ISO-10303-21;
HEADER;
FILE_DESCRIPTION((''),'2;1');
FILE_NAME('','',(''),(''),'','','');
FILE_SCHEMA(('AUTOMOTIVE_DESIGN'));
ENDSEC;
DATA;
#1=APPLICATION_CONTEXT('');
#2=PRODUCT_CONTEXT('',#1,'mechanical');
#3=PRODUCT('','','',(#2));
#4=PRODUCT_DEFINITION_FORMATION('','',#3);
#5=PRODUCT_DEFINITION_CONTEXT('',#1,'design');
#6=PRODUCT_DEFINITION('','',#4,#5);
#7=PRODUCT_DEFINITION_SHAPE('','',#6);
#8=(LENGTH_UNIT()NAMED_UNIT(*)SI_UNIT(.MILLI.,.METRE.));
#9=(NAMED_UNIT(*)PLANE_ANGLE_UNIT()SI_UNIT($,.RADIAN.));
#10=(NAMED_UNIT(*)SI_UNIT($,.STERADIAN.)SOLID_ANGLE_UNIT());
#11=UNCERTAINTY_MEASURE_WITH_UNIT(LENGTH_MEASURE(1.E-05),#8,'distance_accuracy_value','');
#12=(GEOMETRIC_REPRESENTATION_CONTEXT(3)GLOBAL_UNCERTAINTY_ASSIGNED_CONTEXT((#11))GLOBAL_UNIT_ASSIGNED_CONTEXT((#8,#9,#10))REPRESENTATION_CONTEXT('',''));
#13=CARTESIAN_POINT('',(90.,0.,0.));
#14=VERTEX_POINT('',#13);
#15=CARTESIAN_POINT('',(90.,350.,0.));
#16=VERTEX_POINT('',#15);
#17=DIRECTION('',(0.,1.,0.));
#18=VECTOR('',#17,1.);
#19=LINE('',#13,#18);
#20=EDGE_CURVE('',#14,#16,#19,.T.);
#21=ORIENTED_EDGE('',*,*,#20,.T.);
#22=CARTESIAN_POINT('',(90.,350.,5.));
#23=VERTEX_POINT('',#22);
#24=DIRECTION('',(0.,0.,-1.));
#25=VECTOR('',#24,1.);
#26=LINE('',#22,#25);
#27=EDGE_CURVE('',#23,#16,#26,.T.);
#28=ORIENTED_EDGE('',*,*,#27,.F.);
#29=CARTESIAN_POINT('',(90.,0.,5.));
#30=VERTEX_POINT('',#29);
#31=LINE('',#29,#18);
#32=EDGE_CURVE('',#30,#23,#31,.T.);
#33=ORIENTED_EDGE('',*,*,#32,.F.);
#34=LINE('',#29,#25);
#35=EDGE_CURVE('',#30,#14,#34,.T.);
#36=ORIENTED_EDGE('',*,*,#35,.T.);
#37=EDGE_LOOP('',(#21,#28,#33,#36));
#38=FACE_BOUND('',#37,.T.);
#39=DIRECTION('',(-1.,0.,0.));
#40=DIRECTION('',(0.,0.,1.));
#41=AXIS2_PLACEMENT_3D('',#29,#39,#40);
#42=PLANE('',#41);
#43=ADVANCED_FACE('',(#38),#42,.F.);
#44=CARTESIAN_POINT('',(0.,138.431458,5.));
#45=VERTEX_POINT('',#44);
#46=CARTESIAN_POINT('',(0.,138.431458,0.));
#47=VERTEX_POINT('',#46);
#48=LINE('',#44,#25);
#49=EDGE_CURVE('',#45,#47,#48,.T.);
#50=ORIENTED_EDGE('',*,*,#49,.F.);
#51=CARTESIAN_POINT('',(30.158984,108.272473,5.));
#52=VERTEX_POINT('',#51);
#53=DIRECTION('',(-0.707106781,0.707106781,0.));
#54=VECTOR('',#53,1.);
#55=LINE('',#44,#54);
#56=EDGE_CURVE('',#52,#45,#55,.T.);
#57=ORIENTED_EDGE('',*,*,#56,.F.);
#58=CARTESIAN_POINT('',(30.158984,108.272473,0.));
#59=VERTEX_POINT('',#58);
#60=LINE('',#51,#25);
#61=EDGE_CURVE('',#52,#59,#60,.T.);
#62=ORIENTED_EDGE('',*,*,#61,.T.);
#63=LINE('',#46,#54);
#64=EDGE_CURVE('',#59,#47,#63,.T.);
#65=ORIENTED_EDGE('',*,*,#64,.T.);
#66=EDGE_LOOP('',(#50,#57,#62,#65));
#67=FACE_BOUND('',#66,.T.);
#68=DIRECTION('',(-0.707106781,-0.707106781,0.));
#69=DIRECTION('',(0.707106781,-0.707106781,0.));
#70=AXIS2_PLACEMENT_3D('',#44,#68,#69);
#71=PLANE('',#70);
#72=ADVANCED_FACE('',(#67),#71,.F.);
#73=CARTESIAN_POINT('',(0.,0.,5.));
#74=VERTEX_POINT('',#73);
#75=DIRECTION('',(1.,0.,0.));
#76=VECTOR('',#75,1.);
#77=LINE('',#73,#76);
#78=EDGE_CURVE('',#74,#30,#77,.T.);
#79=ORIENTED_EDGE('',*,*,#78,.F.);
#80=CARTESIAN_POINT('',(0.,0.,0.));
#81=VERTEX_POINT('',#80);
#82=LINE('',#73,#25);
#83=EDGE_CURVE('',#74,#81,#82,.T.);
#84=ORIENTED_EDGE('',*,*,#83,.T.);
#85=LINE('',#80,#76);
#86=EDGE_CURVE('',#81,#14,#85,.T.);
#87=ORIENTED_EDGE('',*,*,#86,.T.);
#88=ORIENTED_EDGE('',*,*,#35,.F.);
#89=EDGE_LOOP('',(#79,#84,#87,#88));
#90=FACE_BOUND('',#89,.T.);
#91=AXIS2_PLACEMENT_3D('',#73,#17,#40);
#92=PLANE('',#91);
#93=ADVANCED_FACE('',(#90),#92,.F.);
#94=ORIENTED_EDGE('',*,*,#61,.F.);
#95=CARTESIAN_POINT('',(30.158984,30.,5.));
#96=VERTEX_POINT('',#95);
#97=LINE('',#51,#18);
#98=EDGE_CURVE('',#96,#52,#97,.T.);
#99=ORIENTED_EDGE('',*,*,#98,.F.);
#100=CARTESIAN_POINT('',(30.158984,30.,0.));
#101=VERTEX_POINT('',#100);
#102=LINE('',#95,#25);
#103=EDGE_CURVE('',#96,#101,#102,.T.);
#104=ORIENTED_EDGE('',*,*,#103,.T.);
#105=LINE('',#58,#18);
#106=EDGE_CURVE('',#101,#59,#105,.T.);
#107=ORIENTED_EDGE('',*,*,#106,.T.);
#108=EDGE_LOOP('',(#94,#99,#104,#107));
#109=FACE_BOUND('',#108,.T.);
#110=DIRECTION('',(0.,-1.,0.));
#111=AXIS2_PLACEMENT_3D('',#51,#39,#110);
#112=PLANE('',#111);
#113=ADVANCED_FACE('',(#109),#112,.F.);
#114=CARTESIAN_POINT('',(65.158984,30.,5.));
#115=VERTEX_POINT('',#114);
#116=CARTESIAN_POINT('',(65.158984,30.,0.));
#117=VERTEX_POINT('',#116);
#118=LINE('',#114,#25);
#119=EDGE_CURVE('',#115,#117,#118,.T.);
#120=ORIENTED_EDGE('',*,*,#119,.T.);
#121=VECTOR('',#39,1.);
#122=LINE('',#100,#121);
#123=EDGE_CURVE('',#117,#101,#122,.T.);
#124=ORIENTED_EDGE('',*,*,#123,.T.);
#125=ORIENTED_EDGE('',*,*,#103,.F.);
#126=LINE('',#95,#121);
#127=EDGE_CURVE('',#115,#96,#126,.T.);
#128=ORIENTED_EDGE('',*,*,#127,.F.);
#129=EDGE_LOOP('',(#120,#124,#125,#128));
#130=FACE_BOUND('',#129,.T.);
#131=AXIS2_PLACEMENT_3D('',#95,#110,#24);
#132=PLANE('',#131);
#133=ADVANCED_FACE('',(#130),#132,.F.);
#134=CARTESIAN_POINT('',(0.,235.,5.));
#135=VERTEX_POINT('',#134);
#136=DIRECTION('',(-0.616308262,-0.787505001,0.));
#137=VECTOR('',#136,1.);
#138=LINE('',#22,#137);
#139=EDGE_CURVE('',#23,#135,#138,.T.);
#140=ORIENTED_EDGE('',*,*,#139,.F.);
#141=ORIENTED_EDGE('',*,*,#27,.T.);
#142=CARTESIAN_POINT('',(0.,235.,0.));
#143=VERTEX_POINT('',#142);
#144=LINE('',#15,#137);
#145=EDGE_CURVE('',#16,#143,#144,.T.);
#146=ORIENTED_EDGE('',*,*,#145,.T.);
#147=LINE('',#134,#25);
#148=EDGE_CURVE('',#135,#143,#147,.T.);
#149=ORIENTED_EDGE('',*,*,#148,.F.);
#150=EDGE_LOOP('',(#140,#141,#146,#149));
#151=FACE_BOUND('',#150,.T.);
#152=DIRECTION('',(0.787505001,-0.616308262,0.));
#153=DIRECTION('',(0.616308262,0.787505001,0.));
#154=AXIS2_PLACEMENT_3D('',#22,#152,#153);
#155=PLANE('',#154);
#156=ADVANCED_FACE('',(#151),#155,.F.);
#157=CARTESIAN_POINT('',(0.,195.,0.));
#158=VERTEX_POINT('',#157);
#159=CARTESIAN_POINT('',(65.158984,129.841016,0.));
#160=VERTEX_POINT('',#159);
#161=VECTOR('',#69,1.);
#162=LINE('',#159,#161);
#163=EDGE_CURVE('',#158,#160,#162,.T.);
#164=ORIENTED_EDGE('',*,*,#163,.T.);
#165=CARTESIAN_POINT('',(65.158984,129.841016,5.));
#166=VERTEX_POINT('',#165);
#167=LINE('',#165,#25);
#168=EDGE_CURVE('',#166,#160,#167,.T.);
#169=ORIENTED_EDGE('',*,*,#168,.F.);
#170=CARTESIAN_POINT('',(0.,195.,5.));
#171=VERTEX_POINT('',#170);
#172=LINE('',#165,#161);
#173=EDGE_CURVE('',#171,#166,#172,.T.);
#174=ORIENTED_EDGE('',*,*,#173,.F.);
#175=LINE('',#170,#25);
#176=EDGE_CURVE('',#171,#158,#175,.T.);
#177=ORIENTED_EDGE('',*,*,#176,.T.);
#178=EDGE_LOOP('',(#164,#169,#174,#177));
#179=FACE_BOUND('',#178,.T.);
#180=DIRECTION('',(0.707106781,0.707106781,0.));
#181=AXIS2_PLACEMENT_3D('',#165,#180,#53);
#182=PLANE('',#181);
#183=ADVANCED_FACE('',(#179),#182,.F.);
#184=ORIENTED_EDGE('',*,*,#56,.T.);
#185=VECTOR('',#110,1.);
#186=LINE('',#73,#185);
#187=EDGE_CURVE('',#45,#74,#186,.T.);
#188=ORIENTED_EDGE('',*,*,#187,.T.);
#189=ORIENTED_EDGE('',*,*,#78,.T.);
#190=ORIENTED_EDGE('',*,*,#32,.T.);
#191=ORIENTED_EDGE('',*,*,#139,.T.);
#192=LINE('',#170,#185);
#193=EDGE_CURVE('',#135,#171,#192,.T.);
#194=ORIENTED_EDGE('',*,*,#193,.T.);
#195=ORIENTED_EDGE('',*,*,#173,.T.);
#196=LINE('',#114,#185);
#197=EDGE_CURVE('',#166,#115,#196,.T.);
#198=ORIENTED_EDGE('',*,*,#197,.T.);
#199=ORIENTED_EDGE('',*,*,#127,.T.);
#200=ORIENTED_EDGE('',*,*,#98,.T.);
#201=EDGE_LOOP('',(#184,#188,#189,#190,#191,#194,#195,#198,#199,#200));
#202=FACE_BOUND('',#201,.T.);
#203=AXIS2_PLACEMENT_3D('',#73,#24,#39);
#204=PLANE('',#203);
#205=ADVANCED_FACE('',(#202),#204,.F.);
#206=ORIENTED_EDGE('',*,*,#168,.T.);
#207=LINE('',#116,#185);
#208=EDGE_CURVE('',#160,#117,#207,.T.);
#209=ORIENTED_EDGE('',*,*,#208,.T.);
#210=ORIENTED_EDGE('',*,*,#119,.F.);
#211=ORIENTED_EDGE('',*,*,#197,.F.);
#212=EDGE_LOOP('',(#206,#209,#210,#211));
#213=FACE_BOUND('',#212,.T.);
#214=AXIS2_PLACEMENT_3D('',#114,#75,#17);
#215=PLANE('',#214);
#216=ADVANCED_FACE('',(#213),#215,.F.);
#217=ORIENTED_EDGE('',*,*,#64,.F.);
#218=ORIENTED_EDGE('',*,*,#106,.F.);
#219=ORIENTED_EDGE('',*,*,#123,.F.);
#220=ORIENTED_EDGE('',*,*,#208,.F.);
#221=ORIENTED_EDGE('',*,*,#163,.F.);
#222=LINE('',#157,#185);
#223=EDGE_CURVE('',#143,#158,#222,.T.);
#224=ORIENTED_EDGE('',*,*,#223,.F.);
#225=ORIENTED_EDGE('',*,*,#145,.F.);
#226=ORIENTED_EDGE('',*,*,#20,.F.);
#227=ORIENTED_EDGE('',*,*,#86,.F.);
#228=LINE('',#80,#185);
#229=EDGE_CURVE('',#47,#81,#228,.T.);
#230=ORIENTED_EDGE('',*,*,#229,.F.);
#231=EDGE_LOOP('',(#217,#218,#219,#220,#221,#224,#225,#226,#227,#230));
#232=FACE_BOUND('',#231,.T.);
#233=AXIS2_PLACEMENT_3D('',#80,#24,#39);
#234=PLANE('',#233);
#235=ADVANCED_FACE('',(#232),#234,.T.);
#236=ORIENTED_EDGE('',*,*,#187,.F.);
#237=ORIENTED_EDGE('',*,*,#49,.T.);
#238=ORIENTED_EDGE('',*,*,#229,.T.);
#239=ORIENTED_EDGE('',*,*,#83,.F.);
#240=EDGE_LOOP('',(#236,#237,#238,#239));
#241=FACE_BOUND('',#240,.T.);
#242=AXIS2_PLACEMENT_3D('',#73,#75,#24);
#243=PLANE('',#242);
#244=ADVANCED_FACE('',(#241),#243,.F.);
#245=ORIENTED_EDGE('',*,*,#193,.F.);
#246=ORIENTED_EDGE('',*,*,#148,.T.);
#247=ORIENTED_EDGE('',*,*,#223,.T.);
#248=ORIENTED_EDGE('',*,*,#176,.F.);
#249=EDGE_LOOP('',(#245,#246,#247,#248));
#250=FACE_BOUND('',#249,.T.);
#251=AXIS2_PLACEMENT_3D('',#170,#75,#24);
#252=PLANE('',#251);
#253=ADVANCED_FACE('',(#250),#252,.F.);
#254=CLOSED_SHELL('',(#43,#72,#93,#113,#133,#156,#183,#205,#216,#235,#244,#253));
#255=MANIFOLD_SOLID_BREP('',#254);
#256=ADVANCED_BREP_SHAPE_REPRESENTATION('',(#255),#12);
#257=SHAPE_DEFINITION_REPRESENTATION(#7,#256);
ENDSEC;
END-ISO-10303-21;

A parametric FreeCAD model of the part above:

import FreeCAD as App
import Part
import Sketcher

V = App.Vector
Q = App.Units.Quantity

doc = App.newDocument("Part")
body = doc.addObject("PartDesign::Body", "Body")

sketch1 = body.newObject("Sketcher::SketchObject", "Sketch")
sketch1.AttachmentSupport = (doc.getObject("XY_Plane"), [""])
sketch1.MapMode = "FlatFace"
sketch1.addGeometry([
    Part.LineSegment(V(90, 350, 0), V(0, 235, 0)),
    Part.LineSegment(V(0, 235, 0), V(0, 195, 0)),
    Part.LineSegment(V(0, 195, 0), V(65, 130, 0)),
    Part.LineSegment(V(65, 130, 0), V(65, 30, 0)),
    Part.LineSegment(V(65, 30, 0), V(30, 30, 0)),
    Part.LineSegment(V(30, 30, 0), V(30, 108, 0)),
    Part.LineSegment(V(30, 108, 0), V(0, 138, 0)),
    Part.LineSegment(V(0, 138, 0), V(0, 0, 0)),
    Part.LineSegment(V(0, 0, 0), V(90, 0, 0)),
    Part.LineSegment(V(90, 0, 0), V(90, 350, 0)),
], False)
sketch1.addConstraint([
    Sketcher.Constraint("Coincident", 0, 2, 1, 1),
    Sketcher.Constraint("Coincident", 1, 2, 2, 1),
    Sketcher.Constraint("Coincident", 2, 2, 3, 1),
    Sketcher.Constraint("Coincident", 3, 2, 4, 1),
    Sketcher.Constraint("Coincident", 4, 2, 5, 1),
    Sketcher.Constraint("Coincident", 5, 2, 6, 1),
    Sketcher.Constraint("Coincident", 6, 2, 7, 1),
    Sketcher.Constraint("Coincident", 7, 2, 8, 1),
    Sketcher.Constraint("Coincident", 8, 2, 9, 1),
    Sketcher.Constraint("Coincident", 9, 2, 0, 1),
    Sketcher.Constraint("Vertical", 1),
    Sketcher.Constraint("Vertical", 3),
    Sketcher.Constraint("Horizontal", 4),
    Sketcher.Constraint("Vertical", 5),
    Sketcher.Constraint("Vertical", 7),
    Sketcher.Constraint("Horizontal", 8),
    Sketcher.Constraint("Vertical", 9),
    Sketcher.Constraint("Coincident", 7, 2, -1, 1),
    Sketcher.Constraint("PointOnObject", 0, 2, -2),
    Sketcher.Constraint("Parallel", 2, 6),
    Sketcher.Constraint("DistanceX", 4, 2, 4, 1, Q("35 mm")),
    Sketcher.Constraint("DistanceX", 8, 1, 8, 2, Q("90 mm")),
    Sketcher.Constraint("DistanceY", 1, 2, 1, 1, Q("40 mm")),
    Sketcher.Constraint("DistanceY", 9, 1, 9, 2, Q("350 mm")),
    Sketcher.Constraint("Angle", 2, Q("-45 deg")),
    Sketcher.Constraint("DistanceY", -1, 1, 0, 2, Q("235 mm")),
    Sketcher.Constraint("DistanceY", -1, 1, 3, 2, Q("30 mm")),
    Sketcher.Constraint("Distance", 2, Q("92.148719 mm")),
    Sketcher.Constraint("DistanceY", 5, 1, 5, 2, Q("78.272473 mm")),
])
pad1 = body.newObject("PartDesign::Pad", "Pad")
pad1.Profile = sketch1
pad1.Length = 5

doc.recompute()
